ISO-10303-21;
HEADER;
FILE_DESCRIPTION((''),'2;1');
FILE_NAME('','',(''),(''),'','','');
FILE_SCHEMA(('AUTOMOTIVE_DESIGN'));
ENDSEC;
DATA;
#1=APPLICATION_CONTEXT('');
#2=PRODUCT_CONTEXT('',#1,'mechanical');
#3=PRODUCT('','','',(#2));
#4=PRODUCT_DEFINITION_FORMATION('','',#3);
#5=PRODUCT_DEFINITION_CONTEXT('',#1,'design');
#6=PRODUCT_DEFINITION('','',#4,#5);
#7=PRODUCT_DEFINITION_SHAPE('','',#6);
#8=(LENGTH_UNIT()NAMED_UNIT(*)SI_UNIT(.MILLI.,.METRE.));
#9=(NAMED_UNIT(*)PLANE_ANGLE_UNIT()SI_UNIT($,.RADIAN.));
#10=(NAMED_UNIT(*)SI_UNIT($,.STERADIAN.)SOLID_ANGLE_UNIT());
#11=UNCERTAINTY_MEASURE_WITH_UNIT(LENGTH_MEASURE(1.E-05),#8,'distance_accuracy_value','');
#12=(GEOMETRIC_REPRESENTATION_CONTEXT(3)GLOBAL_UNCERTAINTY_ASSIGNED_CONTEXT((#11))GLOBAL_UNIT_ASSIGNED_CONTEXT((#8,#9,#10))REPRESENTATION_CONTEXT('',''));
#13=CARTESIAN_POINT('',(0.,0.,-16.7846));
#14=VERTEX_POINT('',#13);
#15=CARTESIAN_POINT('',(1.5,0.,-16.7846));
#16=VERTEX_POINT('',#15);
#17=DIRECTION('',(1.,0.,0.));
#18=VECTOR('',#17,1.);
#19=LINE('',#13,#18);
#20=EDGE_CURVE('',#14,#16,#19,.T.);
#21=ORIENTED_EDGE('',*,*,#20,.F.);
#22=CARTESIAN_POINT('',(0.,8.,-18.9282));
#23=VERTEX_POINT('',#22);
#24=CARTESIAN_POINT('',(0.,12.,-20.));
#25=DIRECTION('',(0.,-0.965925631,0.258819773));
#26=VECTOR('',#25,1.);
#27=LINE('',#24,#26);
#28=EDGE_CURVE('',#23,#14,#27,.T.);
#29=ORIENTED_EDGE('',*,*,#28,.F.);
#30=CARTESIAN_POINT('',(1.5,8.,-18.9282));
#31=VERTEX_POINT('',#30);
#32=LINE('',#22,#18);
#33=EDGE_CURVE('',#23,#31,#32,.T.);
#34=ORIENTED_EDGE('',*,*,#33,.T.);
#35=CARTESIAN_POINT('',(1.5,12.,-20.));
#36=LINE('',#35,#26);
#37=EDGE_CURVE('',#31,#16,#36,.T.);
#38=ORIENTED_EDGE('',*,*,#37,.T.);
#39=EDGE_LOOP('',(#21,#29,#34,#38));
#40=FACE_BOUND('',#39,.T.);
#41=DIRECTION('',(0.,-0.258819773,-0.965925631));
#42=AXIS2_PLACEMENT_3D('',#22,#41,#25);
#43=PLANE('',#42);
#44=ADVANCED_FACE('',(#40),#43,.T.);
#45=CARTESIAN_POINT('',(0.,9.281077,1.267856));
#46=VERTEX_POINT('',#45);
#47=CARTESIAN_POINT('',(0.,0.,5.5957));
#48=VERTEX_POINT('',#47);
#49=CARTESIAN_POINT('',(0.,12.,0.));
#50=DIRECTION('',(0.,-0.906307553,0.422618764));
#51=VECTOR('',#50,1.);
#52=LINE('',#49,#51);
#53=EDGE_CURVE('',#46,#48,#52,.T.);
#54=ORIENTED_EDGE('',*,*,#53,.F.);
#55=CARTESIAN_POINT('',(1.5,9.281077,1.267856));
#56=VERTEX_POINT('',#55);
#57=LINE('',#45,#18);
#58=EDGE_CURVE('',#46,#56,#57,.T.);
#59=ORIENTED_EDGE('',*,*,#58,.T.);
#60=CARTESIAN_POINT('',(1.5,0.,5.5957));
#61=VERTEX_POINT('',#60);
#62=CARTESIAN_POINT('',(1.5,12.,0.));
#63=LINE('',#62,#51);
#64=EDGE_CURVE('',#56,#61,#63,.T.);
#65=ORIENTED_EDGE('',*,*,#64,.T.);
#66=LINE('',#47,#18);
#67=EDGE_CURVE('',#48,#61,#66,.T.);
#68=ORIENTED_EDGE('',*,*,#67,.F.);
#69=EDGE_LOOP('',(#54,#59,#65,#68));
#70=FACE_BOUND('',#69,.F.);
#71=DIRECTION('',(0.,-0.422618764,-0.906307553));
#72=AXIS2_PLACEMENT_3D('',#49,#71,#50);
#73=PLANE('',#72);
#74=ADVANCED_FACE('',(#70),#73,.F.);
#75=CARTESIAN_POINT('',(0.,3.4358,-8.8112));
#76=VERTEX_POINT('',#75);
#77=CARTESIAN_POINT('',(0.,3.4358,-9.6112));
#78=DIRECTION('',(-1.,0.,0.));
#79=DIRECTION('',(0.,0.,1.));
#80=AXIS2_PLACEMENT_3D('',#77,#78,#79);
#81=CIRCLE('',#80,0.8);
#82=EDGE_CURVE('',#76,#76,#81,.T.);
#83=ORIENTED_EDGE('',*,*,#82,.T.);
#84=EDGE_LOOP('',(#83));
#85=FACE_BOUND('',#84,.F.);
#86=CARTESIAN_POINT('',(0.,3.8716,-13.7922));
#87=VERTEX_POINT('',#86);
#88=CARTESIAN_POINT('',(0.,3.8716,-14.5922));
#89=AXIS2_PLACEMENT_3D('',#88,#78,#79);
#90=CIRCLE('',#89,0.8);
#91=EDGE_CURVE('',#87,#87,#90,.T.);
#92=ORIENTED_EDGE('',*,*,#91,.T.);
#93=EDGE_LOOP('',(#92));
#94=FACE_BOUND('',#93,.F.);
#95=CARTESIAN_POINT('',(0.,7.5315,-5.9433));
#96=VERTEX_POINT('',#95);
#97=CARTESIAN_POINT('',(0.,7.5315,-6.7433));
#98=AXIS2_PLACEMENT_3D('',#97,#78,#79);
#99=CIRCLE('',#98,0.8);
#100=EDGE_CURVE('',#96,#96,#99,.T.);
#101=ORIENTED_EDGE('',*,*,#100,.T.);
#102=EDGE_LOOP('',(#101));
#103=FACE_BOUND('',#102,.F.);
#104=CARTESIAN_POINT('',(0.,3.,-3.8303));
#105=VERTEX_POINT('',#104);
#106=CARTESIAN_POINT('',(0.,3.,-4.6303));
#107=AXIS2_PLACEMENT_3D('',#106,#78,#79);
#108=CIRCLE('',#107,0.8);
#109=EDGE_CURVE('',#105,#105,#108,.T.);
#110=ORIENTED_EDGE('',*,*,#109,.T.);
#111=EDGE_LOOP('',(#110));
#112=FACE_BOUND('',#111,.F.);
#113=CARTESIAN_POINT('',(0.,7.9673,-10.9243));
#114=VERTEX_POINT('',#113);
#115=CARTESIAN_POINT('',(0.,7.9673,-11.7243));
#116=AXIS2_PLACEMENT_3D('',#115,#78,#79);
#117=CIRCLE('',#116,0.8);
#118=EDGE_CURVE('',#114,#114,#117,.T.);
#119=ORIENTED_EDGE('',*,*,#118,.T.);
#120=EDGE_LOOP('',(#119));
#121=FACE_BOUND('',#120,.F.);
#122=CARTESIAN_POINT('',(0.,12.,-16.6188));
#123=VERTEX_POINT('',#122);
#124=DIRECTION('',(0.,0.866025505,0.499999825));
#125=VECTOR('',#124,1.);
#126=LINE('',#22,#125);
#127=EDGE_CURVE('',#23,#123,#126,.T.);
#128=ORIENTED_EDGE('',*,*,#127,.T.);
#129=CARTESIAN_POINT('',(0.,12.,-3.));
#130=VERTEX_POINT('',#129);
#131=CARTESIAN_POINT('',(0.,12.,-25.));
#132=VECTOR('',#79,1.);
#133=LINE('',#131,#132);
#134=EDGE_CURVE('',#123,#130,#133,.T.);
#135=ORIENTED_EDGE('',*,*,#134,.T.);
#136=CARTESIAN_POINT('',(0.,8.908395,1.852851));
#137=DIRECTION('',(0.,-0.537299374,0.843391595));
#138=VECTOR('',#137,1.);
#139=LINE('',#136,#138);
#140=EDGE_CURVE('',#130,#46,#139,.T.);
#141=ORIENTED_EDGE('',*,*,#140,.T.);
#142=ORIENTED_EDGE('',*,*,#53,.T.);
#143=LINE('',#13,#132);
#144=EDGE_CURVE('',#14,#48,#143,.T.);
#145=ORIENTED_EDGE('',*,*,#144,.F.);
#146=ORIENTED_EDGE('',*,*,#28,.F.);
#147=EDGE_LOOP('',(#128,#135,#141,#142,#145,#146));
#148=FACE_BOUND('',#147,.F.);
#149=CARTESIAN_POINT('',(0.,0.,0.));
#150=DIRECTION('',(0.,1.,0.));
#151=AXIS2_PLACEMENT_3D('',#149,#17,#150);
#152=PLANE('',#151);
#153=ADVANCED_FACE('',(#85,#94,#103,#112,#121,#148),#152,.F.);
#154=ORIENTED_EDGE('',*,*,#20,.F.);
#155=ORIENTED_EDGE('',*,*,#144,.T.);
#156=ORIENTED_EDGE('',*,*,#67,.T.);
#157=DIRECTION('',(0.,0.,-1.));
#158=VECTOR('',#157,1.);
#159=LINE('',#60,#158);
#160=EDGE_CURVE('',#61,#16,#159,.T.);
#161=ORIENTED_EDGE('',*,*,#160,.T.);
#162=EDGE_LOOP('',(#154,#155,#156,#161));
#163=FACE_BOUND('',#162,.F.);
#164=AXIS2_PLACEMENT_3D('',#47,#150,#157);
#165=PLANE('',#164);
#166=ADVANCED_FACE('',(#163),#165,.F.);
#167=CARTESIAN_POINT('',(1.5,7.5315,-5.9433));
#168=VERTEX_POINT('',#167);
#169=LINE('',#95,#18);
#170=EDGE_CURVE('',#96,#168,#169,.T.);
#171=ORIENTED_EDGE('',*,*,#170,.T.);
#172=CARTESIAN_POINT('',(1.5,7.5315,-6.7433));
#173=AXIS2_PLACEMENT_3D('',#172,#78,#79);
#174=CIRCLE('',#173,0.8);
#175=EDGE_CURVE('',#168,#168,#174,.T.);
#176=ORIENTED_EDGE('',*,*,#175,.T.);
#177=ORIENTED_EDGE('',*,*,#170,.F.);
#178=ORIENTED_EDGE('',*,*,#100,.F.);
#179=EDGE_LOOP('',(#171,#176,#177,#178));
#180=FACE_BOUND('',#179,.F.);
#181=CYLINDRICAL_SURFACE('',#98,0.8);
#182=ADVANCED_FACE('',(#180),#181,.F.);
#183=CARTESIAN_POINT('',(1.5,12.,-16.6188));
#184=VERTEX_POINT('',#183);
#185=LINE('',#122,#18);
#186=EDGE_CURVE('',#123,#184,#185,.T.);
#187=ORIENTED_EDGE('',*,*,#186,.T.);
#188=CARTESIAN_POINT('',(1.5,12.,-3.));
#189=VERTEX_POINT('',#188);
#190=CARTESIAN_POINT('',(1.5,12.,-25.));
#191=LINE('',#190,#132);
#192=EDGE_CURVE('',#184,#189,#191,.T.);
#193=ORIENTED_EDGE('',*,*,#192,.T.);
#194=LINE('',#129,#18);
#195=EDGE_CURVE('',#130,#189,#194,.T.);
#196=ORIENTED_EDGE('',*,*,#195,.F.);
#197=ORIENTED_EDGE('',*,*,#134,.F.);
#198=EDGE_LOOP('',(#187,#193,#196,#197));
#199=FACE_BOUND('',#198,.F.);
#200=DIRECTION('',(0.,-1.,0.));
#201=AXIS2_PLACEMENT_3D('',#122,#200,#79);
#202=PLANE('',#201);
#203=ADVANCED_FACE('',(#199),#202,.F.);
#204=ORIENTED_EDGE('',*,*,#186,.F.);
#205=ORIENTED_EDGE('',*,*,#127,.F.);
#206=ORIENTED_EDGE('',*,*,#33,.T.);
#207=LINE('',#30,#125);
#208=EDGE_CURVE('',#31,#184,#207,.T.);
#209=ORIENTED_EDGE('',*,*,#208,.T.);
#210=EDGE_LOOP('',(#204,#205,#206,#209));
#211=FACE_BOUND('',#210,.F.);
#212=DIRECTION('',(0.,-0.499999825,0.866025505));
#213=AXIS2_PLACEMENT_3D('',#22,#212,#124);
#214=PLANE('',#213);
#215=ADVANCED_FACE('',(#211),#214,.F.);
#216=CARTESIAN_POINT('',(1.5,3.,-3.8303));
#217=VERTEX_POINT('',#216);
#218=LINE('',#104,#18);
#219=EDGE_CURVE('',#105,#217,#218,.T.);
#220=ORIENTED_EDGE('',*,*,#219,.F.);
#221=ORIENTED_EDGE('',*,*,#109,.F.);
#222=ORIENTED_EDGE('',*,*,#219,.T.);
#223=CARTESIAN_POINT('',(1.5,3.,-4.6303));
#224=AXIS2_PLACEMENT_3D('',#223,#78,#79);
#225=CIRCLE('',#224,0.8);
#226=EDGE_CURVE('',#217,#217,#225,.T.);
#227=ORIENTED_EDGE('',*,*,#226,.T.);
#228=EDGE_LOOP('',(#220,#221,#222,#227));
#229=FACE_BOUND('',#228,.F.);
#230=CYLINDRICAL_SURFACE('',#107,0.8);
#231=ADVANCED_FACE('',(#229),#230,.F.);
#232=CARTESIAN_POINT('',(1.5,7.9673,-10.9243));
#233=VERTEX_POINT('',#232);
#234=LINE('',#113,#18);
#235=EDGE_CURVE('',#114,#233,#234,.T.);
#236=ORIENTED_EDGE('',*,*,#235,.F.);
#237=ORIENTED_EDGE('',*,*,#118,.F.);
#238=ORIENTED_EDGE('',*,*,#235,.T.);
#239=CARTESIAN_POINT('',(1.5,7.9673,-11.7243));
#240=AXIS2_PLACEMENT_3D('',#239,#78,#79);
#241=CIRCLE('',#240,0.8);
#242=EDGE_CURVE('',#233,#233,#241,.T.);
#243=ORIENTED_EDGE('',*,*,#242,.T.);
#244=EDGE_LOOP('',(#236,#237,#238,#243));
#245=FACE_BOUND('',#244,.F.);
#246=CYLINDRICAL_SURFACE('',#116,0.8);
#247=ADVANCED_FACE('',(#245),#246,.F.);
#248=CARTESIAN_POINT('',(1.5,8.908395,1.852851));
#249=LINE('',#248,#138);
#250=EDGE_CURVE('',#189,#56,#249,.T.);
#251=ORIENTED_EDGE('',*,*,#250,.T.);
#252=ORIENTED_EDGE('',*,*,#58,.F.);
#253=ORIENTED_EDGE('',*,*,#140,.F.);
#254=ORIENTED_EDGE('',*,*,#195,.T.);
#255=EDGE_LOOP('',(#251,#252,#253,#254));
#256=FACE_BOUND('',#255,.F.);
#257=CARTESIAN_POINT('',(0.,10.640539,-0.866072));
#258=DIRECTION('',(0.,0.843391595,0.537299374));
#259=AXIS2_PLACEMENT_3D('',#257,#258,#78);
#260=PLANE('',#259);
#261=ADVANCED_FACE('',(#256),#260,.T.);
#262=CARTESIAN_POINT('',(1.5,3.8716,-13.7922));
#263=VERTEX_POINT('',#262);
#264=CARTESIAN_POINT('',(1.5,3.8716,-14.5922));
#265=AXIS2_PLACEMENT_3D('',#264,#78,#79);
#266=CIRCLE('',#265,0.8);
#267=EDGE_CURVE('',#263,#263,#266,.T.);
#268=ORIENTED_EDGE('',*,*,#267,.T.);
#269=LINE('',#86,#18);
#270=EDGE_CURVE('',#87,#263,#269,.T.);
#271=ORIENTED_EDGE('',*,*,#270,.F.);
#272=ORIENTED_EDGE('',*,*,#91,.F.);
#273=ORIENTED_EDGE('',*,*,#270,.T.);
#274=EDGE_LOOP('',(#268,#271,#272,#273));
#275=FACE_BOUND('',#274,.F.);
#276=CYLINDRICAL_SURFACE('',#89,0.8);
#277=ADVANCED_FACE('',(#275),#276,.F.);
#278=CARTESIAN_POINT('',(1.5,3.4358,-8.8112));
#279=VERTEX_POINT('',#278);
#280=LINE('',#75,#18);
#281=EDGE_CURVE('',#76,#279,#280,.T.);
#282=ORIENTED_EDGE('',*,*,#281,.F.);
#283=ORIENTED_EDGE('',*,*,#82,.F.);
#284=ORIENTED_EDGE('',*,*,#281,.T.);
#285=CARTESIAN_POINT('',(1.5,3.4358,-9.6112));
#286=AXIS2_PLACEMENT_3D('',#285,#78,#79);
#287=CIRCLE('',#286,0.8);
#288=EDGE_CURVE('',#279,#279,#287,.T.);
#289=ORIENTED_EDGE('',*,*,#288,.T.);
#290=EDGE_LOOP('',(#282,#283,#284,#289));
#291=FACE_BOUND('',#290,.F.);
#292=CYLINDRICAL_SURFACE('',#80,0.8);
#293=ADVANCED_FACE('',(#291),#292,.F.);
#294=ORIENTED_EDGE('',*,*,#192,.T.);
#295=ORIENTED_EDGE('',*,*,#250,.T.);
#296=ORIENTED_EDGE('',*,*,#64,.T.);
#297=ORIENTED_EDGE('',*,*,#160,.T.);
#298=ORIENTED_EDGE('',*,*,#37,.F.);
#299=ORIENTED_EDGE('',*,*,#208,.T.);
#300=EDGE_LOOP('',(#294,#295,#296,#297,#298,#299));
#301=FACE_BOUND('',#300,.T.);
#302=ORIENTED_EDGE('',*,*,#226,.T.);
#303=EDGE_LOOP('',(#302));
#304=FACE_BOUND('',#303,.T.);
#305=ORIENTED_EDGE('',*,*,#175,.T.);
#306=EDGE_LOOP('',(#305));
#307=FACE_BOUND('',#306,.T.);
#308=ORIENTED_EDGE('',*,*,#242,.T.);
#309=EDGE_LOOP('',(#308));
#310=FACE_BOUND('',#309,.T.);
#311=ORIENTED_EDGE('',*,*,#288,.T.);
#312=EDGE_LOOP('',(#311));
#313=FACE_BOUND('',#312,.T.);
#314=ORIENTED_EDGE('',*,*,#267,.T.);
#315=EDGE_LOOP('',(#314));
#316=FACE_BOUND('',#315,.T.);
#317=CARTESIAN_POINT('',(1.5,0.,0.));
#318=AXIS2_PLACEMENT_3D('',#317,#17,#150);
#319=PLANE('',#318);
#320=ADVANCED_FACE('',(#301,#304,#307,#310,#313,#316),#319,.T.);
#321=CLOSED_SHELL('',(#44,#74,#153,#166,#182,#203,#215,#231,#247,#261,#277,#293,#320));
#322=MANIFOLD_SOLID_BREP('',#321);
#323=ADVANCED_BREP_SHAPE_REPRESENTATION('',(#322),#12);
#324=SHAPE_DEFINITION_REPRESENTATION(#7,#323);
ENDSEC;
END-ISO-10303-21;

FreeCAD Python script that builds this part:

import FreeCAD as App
import Part
import Sketcher

V = App.Vector
Q = App.Units.Quantity


def edges_at(feature, points):
    """Names of the edges that pass closest to the given points."""
    edges = feature.Shape.Edges
    near = lambda p: min(range(len(edges)), key=lambda i: edges[i].distToShape(Part.Vertex(*p))[0])
    return sorted({f"Edge{near(p) + 1}" for p in points})

doc = App.newDocument("Part")
body = doc.addObject("PartDesign::Body", "Body")

# Sketch on YZ plane
sketch1 = doc.addObject("Sketcher::SketchObject", "Sketch")
body.addObject(sketch1)
sketch1.AttachmentSupport = (doc.YZ_Plane, [""])
sketch1.MapMode = "FlatFace"
sketch1.addGeometry([
    Part.LineSegment(V(12, -16.6, 0), V(12, 0, 0)),  # 0
    Part.LineSegment(V(12, 0, 0), V(0, 5.6, 0)),  # 1
    Part.LineSegment(V(0, 5.6, 0), V(0, -16.8, 0)),  # 2
    Part.LineSegment(V(0, -16.8, 0), V(8, -18.9, 0)),  # 3
    Part.LineSegment(V(8, -18.9, 0), V(12, -16.6, 0)),  # 4
], False)
sketch1.addConstraint([
    Sketcher.Constraint("Coincident", 0, 2, 1, 1),
    Sketcher.Constraint("Coincident", 1, 2, 2, 1),
    Sketcher.Constraint("Coincident", 2, 2, 3, 1),
    Sketcher.Constraint("Coincident", 3, 2, 4, 1),
    Sketcher.Constraint("Coincident", 4, 2, 0, 1),
    Sketcher.Constraint("Vertical", 0),
    Sketcher.Constraint("Vertical", 2),
    Sketcher.Constraint("PointOnObject", 0, 2, -1),
    Sketcher.Constraint("PointOnObject", 1, 2, -2),
    Sketcher.Constraint("Angle", 3, Q("-15 deg")),
    Sketcher.Constraint("DistanceX", -1, 1, 0, 2, Q("12 mm")),
    Sketcher.Constraint("DistanceX", 3, 2, 0, 2, Q("4 mm")),
    Sketcher.Constraint("Angle", 1, Q("155 deg")),
    Sketcher.Constraint("Angle", 4, Q("30 deg")),
    Sketcher.Constraint("DistanceY", 0, 1, 0, 2, Q("16.6188 mm")),
])
pad1 = doc.addObject("PartDesign::Pad", "Pad")
body.addObject(pad1)
pad1.Profile = sketch1
pad1.Length = 1.5

# Sketch on YZ plane
sketch2 = doc.addObject("Sketcher::SketchObject", "Sketch001")
body.addObject(sketch2)
sketch2.AttachmentSupport = (doc.YZ_Plane, [""])
sketch2.MapMode = "FlatFace"
sketch2.addGeometry([
    Part.Circle(V(7.5, -6.7, 0), V(0, 0, 1), 0.8),  # 0
    Part.Circle(V(3.9, -14.6, 0), V(0, 0, 1), 0.8),  # 1
    Part.Circle(V(3.4, -9.6, 0), V(0, 0, 1), 0.8),  # 2
    Part.Circle(V(3, -4.6, 0), V(0, 0, 1), 0.8),  # 3
    Part.Circle(V(8, -11.7, 0), V(0, 0, 1), 0.8),  # 4
], False)
sketch2.addConstraint([
    Sketcher.Constraint("Equal", 0, 1),
    Sketcher.Constraint("Equal", 1, 2),
    Sketcher.Constraint("Equal", 2, 3),
    Sketcher.Constraint("Equal", 3, 4),
    Sketcher.Constraint("Diameter", 0, Q("1.6 mm")),
    Sketcher.Constraint("DistanceX", -1, 1, 3, 3, Q("3 mm")),
    Sketcher.Constraint("DistanceX", 1, 3, 0, 3, Q("3.66 mm")),
    Sketcher.Constraint("DistanceY", 1, 3, 0, 3, Q("7.849 mm")),
    Sketcher.Constraint("DistanceY", 2, 3, 0, 3, Q("2.868 mm")),
    Sketcher.Constraint("DistanceY", 0, 3, 3, 3, Q("2.113 mm")),
    Sketcher.Constraint("DistanceY", 1, 3, 4, 3, Q("2.868 mm")),
    Sketcher.Constraint("DistanceX", -1, 1, 0, 3, Q("7.5315 mm")),
    Sketcher.Constraint("DistanceY", 0, 3, -1, 1, Q("6.7433 mm")),
    Sketcher.Constraint("DistanceX", -1, 1, 2, 3, Q("3.4358 mm")),
    Sketcher.Constraint("DistanceX", -1, 1, 4, 3, Q("7.9673 mm")),
])
pocket1 = doc.addObject("PartDesign::Pocket", "Pocket")
body.addObject(pocket1)
pocket1.Profile = sketch2
pocket1.Length = 1.5
pocket1.Reversed = True
doc.recompute()

chamfer = doc.addObject("PartDesign::Chamfer", "Chamfer")
body.addObject(chamfer)
chamfer.Base = (pocket1, edges_at(pocket1, [(0.75, 12, 0)]))
chamfer.Size = 3

doc.recompute()
